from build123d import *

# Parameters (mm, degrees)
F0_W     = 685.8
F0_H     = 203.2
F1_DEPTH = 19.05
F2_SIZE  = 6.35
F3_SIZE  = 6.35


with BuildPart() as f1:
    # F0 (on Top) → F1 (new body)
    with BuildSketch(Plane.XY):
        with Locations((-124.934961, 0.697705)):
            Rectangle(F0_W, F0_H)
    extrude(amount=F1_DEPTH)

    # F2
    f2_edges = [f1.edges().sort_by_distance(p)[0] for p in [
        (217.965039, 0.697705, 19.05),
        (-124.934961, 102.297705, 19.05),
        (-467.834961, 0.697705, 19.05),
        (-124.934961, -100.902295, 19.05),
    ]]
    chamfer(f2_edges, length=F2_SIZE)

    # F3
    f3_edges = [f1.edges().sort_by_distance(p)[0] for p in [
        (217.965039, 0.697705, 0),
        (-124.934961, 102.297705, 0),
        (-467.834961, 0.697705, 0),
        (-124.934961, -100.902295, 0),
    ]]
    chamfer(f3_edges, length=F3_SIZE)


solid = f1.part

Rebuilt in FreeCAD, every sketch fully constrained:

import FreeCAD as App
import Part
import Sketcher
Q = App.Units.Quantity


def edges_at(feature, points):
    """Names of the edges that pass closest to the given points."""
    edges = feature.Shape.Edges
    near = lambda p: min(range(len(edges)), key=lambda i: edges[i].distToShape(Part.Vertex(*p))[0])
    return sorted({f"Edge{near(p) + 1}" for p in points})

doc = App.newDocument("Part")
body = doc.addObject("PartDesign::Body", "Body")

# Sketch on XY plane
sketch1 = body.newObject("Sketcher::SketchObject", "Sketch")
sketch1.AttachmentSupport = (doc.getObject("XY_Plane"), [""])
sketch1.MapMode = "FlatFace"
sketch1.addGeometry([
    Part.LineSegment(App.Vector(-468, 102, 0), App.Vector(-468, -101, 0)),
    Part.LineSegment(App.Vector(-468, -101, 0), App.Vector(218, -101, 0)),
    Part.LineSegment(App.Vector(218, -101, 0), App.Vector(218, 102, 0)),
    Part.LineSegment(App.Vector(218, 102, 0), App.Vector(-468, 102, 0)),
], False)
sketch1.addConstraint([
    Sketcher.Constraint("Coincident", 0, 2, 1, 1),
    Sketcher.Constraint("Coincident", 1, 2, 2, 1),
    Sketcher.Constraint("Coincident", 2, 2, 3, 1),
    Sketcher.Constraint("Coincident", 3, 2, 0, 1),
    Sketcher.Constraint("Vertical", 0),
    Sketcher.Constraint("Horizontal", 1),
    Sketcher.Constraint("Vertical", 2),
    Sketcher.Constraint("Horizontal", 3),
    Sketcher.Constraint("DistanceX", 1, 1, 1, 2, Q("27 in")),
    Sketcher.Constraint("DistanceY", 0, 2, 0, 1, Q("8 in")),
    Sketcher.Constraint("DistanceX", 0, 2, -1, 1, Q("467.834961 mm")),
    Sketcher.Constraint("DistanceY", 0, 2, -1, 1, Q("100.902295 mm")),
])
pad1 = body.newObject("PartDesign::Pad", "Pad")
pad1.Profile = sketch1
pad1.Length = Q("0.75 in")
doc.recompute()

chamfer = body.newObject("PartDesign::Chamfer", "Chamfer")
chamfer.Base = (pad1, edges_at(pad1, [
    (217.965, 0.698, 19.05),
    (-124.935, 102.298, 19.05),
    (-467.835, 0.698, 19.05),
    (-124.935, -100.902, 19.05),
]))
chamfer.Size = Q("0.25 in")
doc.recompute()

chamfer2 = body.newObject("PartDesign::Chamfer", "Chamfer001")
chamfer2.Base = (chamfer, edges_at(chamfer, [
    (217.965, 0.698, 0),
    (-124.935, 102.298, 0),
    (-467.835, 0.698, 0),
    (-124.935, -100.902, 0),
]))
chamfer2.Size = Q("0.25 in")

doc.recompute()
